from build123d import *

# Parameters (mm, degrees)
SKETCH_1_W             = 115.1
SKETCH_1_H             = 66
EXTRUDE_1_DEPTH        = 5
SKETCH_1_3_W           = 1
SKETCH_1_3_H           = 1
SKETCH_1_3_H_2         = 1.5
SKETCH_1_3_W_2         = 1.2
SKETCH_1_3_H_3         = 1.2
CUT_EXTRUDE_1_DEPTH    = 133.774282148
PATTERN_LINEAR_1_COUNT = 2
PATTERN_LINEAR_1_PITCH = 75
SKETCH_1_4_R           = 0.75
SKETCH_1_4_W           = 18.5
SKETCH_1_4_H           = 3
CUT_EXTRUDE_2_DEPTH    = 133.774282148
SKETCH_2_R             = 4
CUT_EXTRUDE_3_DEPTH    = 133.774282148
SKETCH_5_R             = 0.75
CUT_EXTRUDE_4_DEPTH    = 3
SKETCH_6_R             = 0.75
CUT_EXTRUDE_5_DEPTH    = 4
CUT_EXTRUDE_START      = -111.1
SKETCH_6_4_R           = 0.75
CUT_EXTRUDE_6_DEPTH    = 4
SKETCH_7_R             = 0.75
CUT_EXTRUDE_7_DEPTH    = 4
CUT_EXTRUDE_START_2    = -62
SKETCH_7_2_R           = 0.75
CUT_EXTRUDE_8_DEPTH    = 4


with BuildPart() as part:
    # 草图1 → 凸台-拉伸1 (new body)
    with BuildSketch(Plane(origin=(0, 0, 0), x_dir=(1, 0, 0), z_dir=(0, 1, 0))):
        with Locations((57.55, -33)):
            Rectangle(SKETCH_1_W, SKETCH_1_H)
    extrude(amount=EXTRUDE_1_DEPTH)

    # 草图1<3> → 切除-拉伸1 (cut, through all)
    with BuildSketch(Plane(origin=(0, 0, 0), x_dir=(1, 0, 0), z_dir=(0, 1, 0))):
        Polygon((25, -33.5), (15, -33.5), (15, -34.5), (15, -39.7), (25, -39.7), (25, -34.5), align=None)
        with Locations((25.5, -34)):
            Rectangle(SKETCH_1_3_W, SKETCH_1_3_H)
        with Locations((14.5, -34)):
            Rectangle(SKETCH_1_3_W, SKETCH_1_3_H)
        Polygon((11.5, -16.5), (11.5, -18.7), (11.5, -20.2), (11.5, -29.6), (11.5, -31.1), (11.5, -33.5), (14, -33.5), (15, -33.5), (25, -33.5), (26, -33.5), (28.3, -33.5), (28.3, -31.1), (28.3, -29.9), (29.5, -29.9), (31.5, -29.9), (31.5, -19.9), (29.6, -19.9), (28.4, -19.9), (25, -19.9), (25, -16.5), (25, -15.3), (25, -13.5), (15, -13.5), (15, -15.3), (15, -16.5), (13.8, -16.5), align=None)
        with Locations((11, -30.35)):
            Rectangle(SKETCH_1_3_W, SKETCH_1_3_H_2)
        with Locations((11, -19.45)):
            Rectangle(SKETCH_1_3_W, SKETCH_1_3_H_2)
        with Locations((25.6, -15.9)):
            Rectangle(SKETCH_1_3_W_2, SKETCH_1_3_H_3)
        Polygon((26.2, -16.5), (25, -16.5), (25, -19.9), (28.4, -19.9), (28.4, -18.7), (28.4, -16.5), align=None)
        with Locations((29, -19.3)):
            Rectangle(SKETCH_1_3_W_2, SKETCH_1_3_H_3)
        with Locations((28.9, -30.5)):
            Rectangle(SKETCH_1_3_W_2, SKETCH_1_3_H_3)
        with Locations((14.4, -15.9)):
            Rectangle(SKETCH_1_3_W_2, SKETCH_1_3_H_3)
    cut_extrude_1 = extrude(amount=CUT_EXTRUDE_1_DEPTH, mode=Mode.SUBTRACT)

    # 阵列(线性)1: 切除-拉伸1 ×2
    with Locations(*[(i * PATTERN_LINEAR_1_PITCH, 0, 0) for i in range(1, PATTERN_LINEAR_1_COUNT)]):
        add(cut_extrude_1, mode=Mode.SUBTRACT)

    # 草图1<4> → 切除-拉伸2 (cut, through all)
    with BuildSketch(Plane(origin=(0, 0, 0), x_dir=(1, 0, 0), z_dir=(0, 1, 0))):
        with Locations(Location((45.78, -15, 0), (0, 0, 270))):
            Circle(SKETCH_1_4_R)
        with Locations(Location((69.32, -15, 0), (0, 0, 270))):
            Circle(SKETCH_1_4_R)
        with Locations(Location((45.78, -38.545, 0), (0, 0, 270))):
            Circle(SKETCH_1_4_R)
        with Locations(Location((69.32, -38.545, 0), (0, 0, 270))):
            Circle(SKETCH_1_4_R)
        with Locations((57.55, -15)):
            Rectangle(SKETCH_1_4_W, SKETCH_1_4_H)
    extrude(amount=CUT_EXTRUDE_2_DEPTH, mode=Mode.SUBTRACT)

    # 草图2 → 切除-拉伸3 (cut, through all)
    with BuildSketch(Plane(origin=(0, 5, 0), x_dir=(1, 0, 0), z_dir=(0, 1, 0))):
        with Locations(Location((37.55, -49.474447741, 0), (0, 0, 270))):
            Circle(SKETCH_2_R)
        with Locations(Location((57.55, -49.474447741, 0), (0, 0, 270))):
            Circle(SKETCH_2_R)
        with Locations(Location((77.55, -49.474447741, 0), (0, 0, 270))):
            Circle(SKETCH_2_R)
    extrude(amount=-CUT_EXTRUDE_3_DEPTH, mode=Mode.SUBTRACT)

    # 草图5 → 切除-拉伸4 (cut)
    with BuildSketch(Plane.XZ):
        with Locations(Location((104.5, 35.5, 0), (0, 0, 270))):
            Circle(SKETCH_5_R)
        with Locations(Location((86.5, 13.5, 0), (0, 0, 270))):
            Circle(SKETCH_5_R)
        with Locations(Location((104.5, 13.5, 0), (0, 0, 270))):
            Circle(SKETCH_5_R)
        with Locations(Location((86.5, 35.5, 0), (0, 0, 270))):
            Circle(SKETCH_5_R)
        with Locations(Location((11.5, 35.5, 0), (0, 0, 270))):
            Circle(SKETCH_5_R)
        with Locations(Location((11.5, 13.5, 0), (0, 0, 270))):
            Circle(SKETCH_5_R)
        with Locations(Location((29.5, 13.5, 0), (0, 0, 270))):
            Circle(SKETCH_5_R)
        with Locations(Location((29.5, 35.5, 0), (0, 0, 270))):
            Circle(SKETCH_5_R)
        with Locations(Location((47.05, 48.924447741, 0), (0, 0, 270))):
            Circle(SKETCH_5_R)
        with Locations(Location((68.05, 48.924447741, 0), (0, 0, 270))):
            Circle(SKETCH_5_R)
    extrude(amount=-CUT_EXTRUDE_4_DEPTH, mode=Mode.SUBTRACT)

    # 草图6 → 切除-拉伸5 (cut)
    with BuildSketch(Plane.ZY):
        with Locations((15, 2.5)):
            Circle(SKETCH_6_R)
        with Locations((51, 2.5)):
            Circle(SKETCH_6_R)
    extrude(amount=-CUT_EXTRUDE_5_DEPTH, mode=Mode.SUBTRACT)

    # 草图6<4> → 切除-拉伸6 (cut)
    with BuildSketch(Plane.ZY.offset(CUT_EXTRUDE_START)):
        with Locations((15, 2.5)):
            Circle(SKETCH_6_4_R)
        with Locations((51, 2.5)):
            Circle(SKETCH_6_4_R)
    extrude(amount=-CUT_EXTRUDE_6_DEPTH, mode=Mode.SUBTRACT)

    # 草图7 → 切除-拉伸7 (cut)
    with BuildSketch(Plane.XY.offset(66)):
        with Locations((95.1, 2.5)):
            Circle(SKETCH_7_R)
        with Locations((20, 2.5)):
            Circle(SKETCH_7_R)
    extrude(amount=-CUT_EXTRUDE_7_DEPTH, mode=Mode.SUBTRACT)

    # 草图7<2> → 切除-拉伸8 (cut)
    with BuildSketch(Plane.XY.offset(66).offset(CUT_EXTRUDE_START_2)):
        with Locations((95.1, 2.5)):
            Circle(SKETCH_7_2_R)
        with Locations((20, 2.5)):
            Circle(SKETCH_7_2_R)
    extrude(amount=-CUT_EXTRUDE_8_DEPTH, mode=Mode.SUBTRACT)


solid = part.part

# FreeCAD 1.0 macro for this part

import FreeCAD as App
import Part
import Sketcher
from FreeCAD import Vector
Q = App.Units.Quantity


def add_polygon(sketch, points):
    """Adds a closed chain of lines whose ends are joined by coincident constraints."""
    first, n = sketch.GeometryCount, len(points)
    for a, b in zip(points, points[1:] + points[:1]):
        sketch.addGeometry(Part.LineSegment(App.Vector(*a, 0), App.Vector(*b, 0)), False)
    for i in range(n):
        sketch.addConstraint(Sketcher.Constraint("Coincident", first + i, 2, first + (i + 1) % n, 1))

doc = App.newDocument("Part")
body = doc.addObject("PartDesign::Body", "Body")

sketch1 = doc.addObject("Sketcher::SketchObject", "Sketch")
body.addObject(sketch1)
sketch1.AttachmentSupport = (doc.XZ_Plane, [""])
sketch1.MapMode = "FlatFace"
add_polygon(sketch1, [(0, 0), (0, 66), (115.1, 66), (115.1, 0)])
sketch1.addConstraint(Sketcher.Constraint("Vertical", 0))
sketch1.addConstraint(Sketcher.Constraint("Horizontal", 1))
sketch1.addConstraint(Sketcher.Constraint("Vertical", 2))
sketch1.addConstraint(Sketcher.Constraint("Horizontal", 3))
sketch1.addConstraint(Sketcher.Constraint("Coincident", 3, 2, -1, 1))
sketch1.addConstraint(Sketcher.Constraint("DistanceY", 0, 1, 0, 2, Q("66 mm")))
sketch1.addConstraint(Sketcher.Constraint("DistanceX", 1, 1, 1, 2, Q("115.1 mm")))
pad1 = doc.addObject("PartDesign::Pad", "Pad")
body.addObject(pad1)
pad1.Profile = sketch1
pad1.Length = 5
pad1.Reversed = True

sketch2 = doc.addObject("Sketcher::SketchObject", "Sketch001")
body.addObject(sketch2)
sketch2.AttachmentSupport = (doc.XZ_Plane, [""])
sketch2.MapMode = "FlatFace"
add_polygon(sketch2, [(15, 34.5), (15, 39.7), (25, 39.7), (25, 34.5), (26, 34.5), (26, 33.5), (28.3, 33.5), (28.3, 31.1), (29.5, 31.1), (29.5, 29.9), (31.5, 29.9), (31.5, 19.9), (29.6, 19.9), (29.6, 18.7), (28.4, 18.7), (28.4, 16.5), (26.2, 16.5), (26.2, 15.3), (25, 15.3), (25, 13.5), (15, 13.5), (15, 15.3), (13.8, 15.3), (13.8, 16.5), (11.5, 16.5), (11.5, 18.7), (10.5, 18.7), (10.5, 20.2), (11.5, 20.2), (11.5, 29.6), (10.5, 29.6), (10.5, 31.1), (11.5, 31.1), (11.5, 33.5), (14, 33.5), (14, 34.5)])
sketch2.addConstraint(Sketcher.Constraint("Vertical", 0))
sketch2.addConstraint(Sketcher.Constraint("Horizontal", 1))
sketch2.addConstraint(Sketcher.Constraint("Vertical", 2))
sketch2.addConstraint(Sketcher.Constraint("Horizontal", 3))
sketch2.addConstraint(Sketcher.Constraint("Vertical", 4))
sketch2.addConstraint(Sketcher.Constraint("Horizontal", 5))
sketch2.addConstraint(Sketcher.Constraint("Vertical", 6))
sketch2.addConstraint(Sketcher.Constraint("Horizontal", 7))
sketch2.addConstraint(Sketcher.Constraint("Vertical", 8))
sketch2.addConstraint(Sketcher.Constraint("Horizontal", 9))
sketch2.addConstraint(Sketcher.Constraint("Vertical", 10))
sketch2.addConstraint(Sketcher.Constraint("Horizontal", 11))
sketch2.addConstraint(Sketcher.Constraint("Vertical", 12))
sketch2.addConstraint(Sketcher.Constraint("Horizontal", 13))
sketch2.addConstraint(Sketcher.Constraint("Vertical", 14))
sketch2.addConstraint(Sketcher.Constraint("Horizontal", 15))
sketch2.addConstraint(Sketcher.Constraint("Vertical", 16))
sketch2.addConstraint(Sketcher.Constraint("Horizontal", 17))
sketch2.addConstraint(Sketcher.Constraint("Vertical", 18))
sketch2.addConstraint(Sketcher.Constraint("Horizontal", 19))
sketch2.addConstraint(Sketcher.Constraint("Vertical", 20))
sketch2.addConstraint(Sketcher.Constraint("Horizontal", 21))
sketch2.addConstraint(Sketcher.Constraint("Vertical", 22))
sketch2.addConstraint(Sketcher.Constraint("Horizontal", 23))
sketch2.addConstraint(Sketcher.Constraint("Vertical", 24))
sketch2.addConstraint(Sketcher.Constraint("Horizontal", 25))
sketch2.addConstraint(Sketcher.Constraint("Vertical", 26))
sketch2.addConstraint(Sketcher.Constraint("Horizontal", 27))
sketch2.addConstraint(Sketcher.Constraint("Vertical", 28))
sketch2.addConstraint(Sketcher.Constraint("Horizontal", 29))
sketch2.addConstraint(Sketcher.Constraint("Vertical", 30))
sketch2.addConstraint(Sketcher.Constraint("Horizontal", 31))
sketch2.addConstraint(Sketcher.Constraint("Vertical", 32))
sketch2.addConstraint(Sketcher.Constraint("Horizontal", 33))
sketch2.addConstraint(Sketcher.Constraint("Vertical", 34))
sketch2.addConstraint(Sketcher.Constraint("Horizontal", 35))
sketch2.addConstraint(Sketcher.Constraint("Horizontal", 17, 2, 20, 2))
sketch2.addConstraint(Sketcher.Constraint("Horizontal", 15, 2, 22, 2))
sketch2.addConstraint(Sketcher.Constraint("Horizontal", 13, 2, 24, 2))
sketch2.addConstraint(Sketcher.Constraint("Horizontal", 7, 2, 30, 2))
sketch2.addConstraint(Sketcher.Constraint("Horizontal", 5, 2, 32, 2))
sketch2.addConstraint(Sketcher.Constraint("Horizontal", 3, 2, 34, 2))
sketch2.addConstraint(Sketcher.Constraint("Vertical", 2, 2, 17, 2))
sketch2.addConstraint(Sketcher.Constraint("Vertical", 0, 2, 19, 2))
sketch2.addConstraint(Sketcher.Constraint("Vertical", 24, 2, 27, 2))
sketch2.addConstraint(Sketcher.Constraint("Vertical", 26, 2, 29, 2))
sketch2.addConstraint(Sketcher.Constraint("Vertical", 28, 2, 31, 2))
sketch2.addConstraint(Sketcher.Constraint("Equal", 7, 13))
sketch2.addConstraint(Sketcher.Constraint("Equal", 13, 17))
sketch2.addConstraint(Sketcher.Constraint("Equal", 17, 21))
sketch2.addConstraint(Sketcher.Constraint("Equal", 5, 23))
sketch2.addConstraint(Sketcher.Constraint("Equal", 3, 25))
sketch2.addConstraint(Sketcher.Constraint("Equal", 31, 35))
sketch2.addConstraint(Sketcher.Constraint("Equal", 35, 4))
sketch2.addConstraint(Sketcher.Constraint("Equal", 21, 8))
sketch2.addConstraint(Sketcher.Constraint("Equal", 19, 10))
sketch2.addConstraint(Sketcher.Constraint("Equal", 8, 12))
sketch2.addConstraint(Sketcher.Constraint("Equal", 15, 14))
sketch2.addConstraint(Sketcher.Constraint("Equal", 12, 16))
sketch2.addConstraint(Sketcher.Constraint("Equal", 26, 30))
sketch2.addConstraint(Sketcher.Constraint("DistanceX", 1, 1, 1, 2, Q("10 mm")))
sketch2.addConstraint(Sketcher.Constraint("DistanceX", 3, 1, 3, 2, Q("1 mm")))
sketch2.addConstraint(Sketcher.Constraint("DistanceX", 9, 1, 9, 2, Q("2 mm")))
sketch2.addConstraint(Sketcher.Constraint("DistanceX", 5, 1, 5, 2, Q("2.3 mm")))
sketch2.addConstraint(Sketcher.Constraint("DistanceX", 7, 1, 7, 2, Q("1.2 mm")))
sketch2.addConstraint(Sketcher.Constraint("DistanceX", 11, 2, 11, 1, Q("1.9 mm")))
sketch2.addConstraint(Sketcher.Constraint("DistanceY", 0, 1, 0, 2, Q("5.2 mm")))
sketch2.addConstraint(Sketcher.Constraint("DistanceY", 6, 2, 6, 1, Q("2.4 mm")))
sketch2.addConstraint(Sketcher.Constraint("DistanceY", 18, 2, 18, 1, Q("1.8 mm")))
sketch2.addConstraint(Sketcher.Constraint("DistanceY", 26, 1, 26, 2, Q("1.5 mm")))
sketch2.addConstraint(Sketcher.Constraint("DistanceX", -1, 1, 0, 2, Q("15 mm")))
sketch2.addConstraint(Sketcher.Constraint("DistanceY", -1, 1, 0, 2, Q("39.7 mm")))
pocket1 = doc.addObject("PartDesign::Pocket", "Pocket")
body.addObject(pocket1)
pocket1.Profile = sketch2
pocket1.Type = "ThroughAll"
doc.recompute()

linearpattern = doc.addObject("PartDesign::LinearPattern", "LinearPattern")
body.addObject(linearpattern)
linearpattern.Originals = [pocket1]
linearpattern.Direction = (doc.X_Axis, [""])
linearpattern.Mode = "offset"
linearpattern.Offset = 75
linearpattern.Occurrences = 2
body.Tip = linearpattern

sketch3 = doc.addObject("Sketcher::SketchObject", "Sketch002")
body.addObject(sketch3)
sketch3.AttachmentSupport = (doc.XZ_Plane, [""])
sketch3.MapMode = "FlatFace"
sketch3.addGeometry(Part.Circle(Vector(45.78, 15, 0), Vector(0, 0, 1), 0.75), False)
sketch3.addGeometry(Part.Circle(Vector(69.32, 15, 0), Vector(0, 0, 1), 0.75), False)
sketch3.addGeometry(Part.Circle(Vector(45.78, 38.545, 0), Vector(0, 0, 1), 0.75), False)
sketch3.addGeometry(Part.Circle(Vector(69.32, 38.545, 0), Vector(0, 0, 1), 0.75), False)
add_polygon(sketch3, [(48.3, 13.5), (48.3, 16.5), (66.8, 16.5), (66.8, 13.5)])
sketch3.addConstraint(Sketcher.Constraint("Vertical", 4))
sketch3.addConstraint(Sketcher.Constraint("Horizontal", 5))
sketch3.addConstraint(Sketcher.Constraint("Vertical", 6))
sketch3.addConstraint(Sketcher.Constraint("Horizontal", 7))
sketch3.addConstraint(Sketcher.Constraint("Equal", 0, 1))
sketch3.addConstraint(Sketcher.Constraint("Equal", 1, 2))
sketch3.addConstraint(Sketcher.Constraint("Equal", 2, 3))
sketch3.addConstraint(Sketcher.Constraint("Horizontal", 0, 3, 1, 3))
sketch3.addConstraint(Sketcher.Constraint("Horizontal", 2, 3, 3, 3))
sketch3.addConstraint(Sketcher.Constraint("Vertical", 0, 3, 2, 3))
sketch3.addConstraint(Sketcher.Constraint("Vertical", 1, 3, 3, 3))
sketch3.addConstraint(Sketcher.Constraint("Diameter", 0, Q("1.5 mm")))
sketch3.addConstraint(Sketcher.Constraint("DistanceY", 4, 1, 4, 2, Q("3 mm")))
sketch3.addConstraint(Sketcher.Constraint("DistanceX", 5, 1, 5, 2, Q("18.5 mm")))
sketch3.addConstraint(Sketcher.Constraint("DistanceY", -1, 1, 0, 3, Q("15 mm")))
sketch3.addConstraint(Sketcher.Constraint("DistanceX", -1, 1, 4, 2, Q("48.3 mm")))
sketch3.addConstraint(Sketcher.Constraint("DistanceY", -1, 1, 4, 2, Q("16.5 mm")))
sketch3.addConstraint(Sketcher.Constraint("DistanceX", -1, 1, 0, 3, Q("45.78 mm")))
sketch3.addConstraint(Sketcher.Constraint("DistanceX", -1, 1, 1, 3, Q("69.32 mm")))
sketch3.addConstraint(Sketcher.Constraint("DistanceY", -1, 1, 2, 3, Q("38.545 mm")))
pocket2 = doc.addObject("PartDesign::Pocket", "Pocket001")
body.addObject(pocket2)
pocket2.Profile = sketch3
pocket2.Type = "ThroughAll"

sketch4 = doc.addObject("Sketcher::SketchObject", "Sketch003")
body.addObject(sketch4)
sketch4.AttachmentSupport = (doc.XZ_Plane, [""])
sketch4.MapMode = "FlatFace"
sketch4.AttachmentOffset = App.Placement(Vector(0, 0, -5), App.Rotation())
sketch4.addGeometry(Part.Circle(Vector(37.55, 49.474448, 0), Vector(0, 0, 1), 4), False)
sketch4.addGeometry(Part.Circle(Vector(57.55, 49.474448, 0), Vector(0, 0, 1), 4), False)
sketch4.addGeometry(Part.Circle(Vector(77.55, 49.474448, 0), Vector(0, 0, 1), 4), False)
sketch4.addConstraint(Sketcher.Constraint("Equal", 0, 1))
sketch4.addConstraint(Sketcher.Constraint("Equal", 1, 2))
sketch4.addConstraint(Sketcher.Constraint("Horizontal", 0, 3, 1, 3))
sketch4.addConstraint(Sketcher.Constraint("Horizontal", 1, 3, 2, 3))
sketch4.addConstraint(Sketcher.Constraint("Diameter", 0, Q("8 mm")))
sketch4.addConstraint(Sketcher.Constraint("DistanceX", 0, 3, 1, 3, Q("20 mm")))
sketch4.addConstraint(Sketcher.Constraint("DistanceX", 1, 3, 2, 3, Q("20 mm")))
sketch4.addConstraint(Sketcher.Constraint("DistanceX", -1, 1, 0, 3, Q("37.55 mm")))
sketch4.addConstraint(Sketcher.Constraint("DistanceY", -1, 1, 0, 3, Q("49.474448 mm")))
pocket3 = doc.addObject("PartDesign::Pocket", "Pocket002")
body.addObject(pocket3)
pocket3.Profile = sketch4
pocket3.Type = "ThroughAll"
pocket3.Reversed = True

sketch5 = doc.addObject("Sketcher::SketchObject", "Sketch004")
body.addObject(sketch5)
sketch5.AttachmentSupport = (doc.XZ_Plane, [""])
sketch5.MapMode = "FlatFace"
sketch5.addGeometry(Part.Circle(Vector(104.5, 35.5, 0), Vector(0, 0, 1), 0.75), False)
sketch5.addGeometry(Part.Circle(Vector(86.5, 13.5, 0), Vector(0, 0, 1), 0.75), False)
sketch5.addGeometry(Part.Circle(Vector(104.5, 13.5, 0), Vector(0, 0, 1), 0.75), False)
sketch5.addGeometry(Part.Circle(Vector(86.5, 35.5, 0), Vector(0, 0, 1), 0.75), False)
sketch5.addGeometry(Part.Circle(Vector(11.5, 35.5, 0), Vector(0, 0, 1), 0.75), False)
sketch5.addGeometry(Part.Circle(Vector(11.5, 13.5, 0), Vector(0, 0, 1), 0.75), False)
sketch5.addGeometry(Part.Circle(Vector(29.5, 13.5, 0), Vector(0, 0, 1), 0.75), False)
sketch5.addGeometry(Part.Circle(Vector(29.5, 35.5, 0), Vector(0, 0, 1), 0.75), False)
sketch5.addGeometry(Part.Circle(Vector(47.05, 48.924448, 0), Vector(0, 0, 1), 0.75), False)
sketch5.addGeometry(Part.Circle(Vector(68.05, 48.924448, 0), Vector(0, 0, 1), 0.75), False)
sketch5.addConstraint(Sketcher.Constraint("Equal", 0, 1))
sketch5.addConstraint(Sketcher.Constraint("Equal", 1, 2))
sketch5.addConstraint(Sketcher.Constraint("Equal", 2, 3))
sketch5.addConstraint(Sketcher.Constraint("Equal", 3, 4))
sketch5.addConstraint(Sketcher.Constraint("Equal", 4, 5))
sketch5.addConstraint(Sketcher.Constraint("Equal", 5, 6))
sketch5.addConstraint(Sketcher.Constraint("Equal", 6, 7))
sketch5.addConstraint(Sketcher.Constraint("Equal", 7, 8))
sketch5.addConstraint(Sketcher.Constraint("Equal", 8, 9))
sketch5.addConstraint(Sketcher.Constraint("Horizontal", 1, 3, 2, 3))
sketch5.addConstraint(Sketcher.Constraint("Horizontal", 0, 3, 3, 3))
sketch5.addConstraint(Sketcher.Constraint("Horizontal", 3, 3, 4, 3))
sketch5.addConstraint(Sketcher.Constraint("Horizontal", 2, 3, 5, 3))
sketch5.addConstraint(Sketcher.Constraint("Horizontal", 5, 3, 6, 3))
sketch5.addConstraint(Sketcher.Constraint("Horizontal", 4, 3, 7, 3))
sketch5.addConstraint(Sketcher.Constraint("Horizontal", 8, 3, 9, 3))
sketch5.addConstraint(Sketcher.Constraint("Vertical", 0, 3, 2, 3))
sketch5.addConstraint(Sketcher.Constraint("Vertical", 1, 3, 3, 3))
sketch5.addConstraint(Sketcher.Constraint("Vertical", 4, 3, 5, 3))
sketch5.addConstraint(Sketcher.Constraint("Vertical", 6, 3, 7, 3))
sketch5.addConstraint(Sketcher.Constraint("Diameter", 0, Q("1.5 mm")))
sketch5.addConstraint(Sketcher.Constraint("DistanceX", 1, 3, 0, 3, Q("18 mm")))
sketch5.addConstraint(Sketcher.Constraint("DistanceY", 1, 3, 0, 3, Q("22 mm")))
sketch5.addConstraint(Sketcher.Constraint("DistanceX", 4, 3, 3, 3, Q("75 mm")))
sketch5.addConstraint(Sketcher.Constraint("DistanceX", 5, 3, 6, 3, Q("18 mm")))
sketch5.addConstraint(Sketcher.Constraint("DistanceX", 8, 3, 9, 3, Q("21 mm")))
sketch5.addConstraint(Sketcher.Constraint("DistanceX", -1, 1, 0, 3, Q("104.5 mm")))
sketch5.addConstraint(Sketcher.Constraint("DistanceY", -1, 1, 0, 3, Q("35.5 mm")))
sketch5.addConstraint(Sketcher.Constraint("DistanceX", -1, 1, 8, 3, Q("47.05 mm")))
sketch5.addConstraint(Sketcher.Constraint("DistanceY", -1, 1, 8, 3, Q("48.924448 mm")))
pocket4 = doc.addObject("PartDesign::Pocket", "Pocket003")
body.addObject(pocket4)
pocket4.Profile = sketch5
pocket4.Length = 3

sketch6 = doc.addObject("Sketcher::SketchObject", "Sketch005")
body.addObject(sketch6)
sketch6.AttachmentSupport = (doc.YZ_Plane, [""])
sketch6.MapMode = "FlatFace"
sketch6.addGeometry(Part.Circle(Vector(2.5, 15, 0), Vector(0, 0, 1), 0.75), False)
sketch6.addGeometry(Part.Circle(Vector(2.5, 51, 0), Vector(0, 0, 1), 0.75), False)
sketch6.addConstraint(Sketcher.Constraint("Equal", 0, 1))
sketch6.addConstraint(Sketcher.Constraint("Vertical", 0, 3, 1, 3))
sketch6.addConstraint(Sketcher.Constraint("Diameter", 0, Q("1.5 mm")))
sketch6.addConstraint(Sketcher.Constraint("DistanceY", -1, 1, 0, 3, Q("15 mm")))
sketch6.addConstraint(Sketcher.Constraint("DistanceY", -1, 1, 1, 3, Q("51 mm")))
sketch6.addConstraint(Sketcher.Constraint("DistanceX", -1, 1, 0, 3, Q("2.5 mm")))
pocket5 = doc.addObject("PartDesign::Pocket", "Pocket004")
body.addObject(pocket5)
pocket5.Profile = sketch6
pocket5.Length = 4
pocket5.Reversed = True

sketch7 = doc.addObject("Sketcher::SketchObject", "Sketch006")
body.addObject(sketch7)
sketch7.AttachmentSupport = (doc.YZ_Plane, [""])
sketch7.MapMode = "FlatFace"
sketch7.AttachmentOffset = App.Placement(Vector(0, 0, 111.1), App.Rotation())
sketch7.addGeometry(Part.Circle(Vector(2.5, 15, 0), Vector(0, 0, 1), 0.75), False)
sketch7.addGeometry(Part.Circle(Vector(2.5, 51, 0), Vector(0, 0, 1), 0.75), False)
sketch7.addConstraint(Sketcher.Constraint("Equal", 0, 1))
sketch7.addConstraint(Sketcher.Constraint("Vertical", 0, 3, 1, 3))
sketch7.addConstraint(Sketcher.Constraint("Diameter", 0, Q("1.5 mm")))
sketch7.addConstraint(Sketcher.Constraint("DistanceY", -1, 1, 0, 3, Q("15 mm")))
sketch7.addConstraint(Sketcher.Constraint("DistanceY", -1, 1, 1, 3, Q("51 mm")))
sketch7.addConstraint(Sketcher.Constraint("DistanceX", -1, 1, 0, 3, Q("2.5 mm")))
pocket6 = doc.addObject("PartDesign::Pocket", "Pocket005")
body.addObject(pocket6)
pocket6.Profile = sketch7
pocket6.Length = 4
pocket6.Reversed = True

sketch8 = doc.addObject("Sketcher::SketchObject", "Sketch007")
body.addObject(sketch8)
sketch8.AttachmentSupport = (doc.XY_Plane, [""])
sketch8.MapMode = "FlatFace"
sketch8.AttachmentOffset = App.Placement(Vector(0, 0, 66), App.Rotation())
sketch8.addGeometry(Part.Circle(Vector(95.1, 2.5, 0), Vector(0, 0, 1), 0.75), False)
sketch8.addGeometry(Part.Circle(Vector(20, 2.5, 0), Vector(0, 0, 1), 0.75), False)
sketch8.addConstraint(Sketcher.Constraint("Equal", 0, 1))
sketch8.addConstraint(Sketcher.Constraint("Horizontal", 0, 3, 1, 3))
sketch8.addConstraint(Sketcher.Constraint("Diameter", 0, Q("1.5 mm")))
sketch8.addConstraint(Sketcher.Constraint("DistanceX", -1, 1, 1, 3, Q("20 mm")))
sketch8.addConstraint(Sketcher.Constraint("DistanceX", -1, 1, 0, 3, Q("95.1 mm")))
sketch8.addConstraint(Sketcher.Constraint("DistanceY", -1, 1, 0, 3, Q("2.5 mm")))
pocket7 = doc.addObject("PartDesign::Pocket", "Pocket006")
body.addObject(pocket7)
pocket7.Profile = sketch8
pocket7.Length = 4

sketch9 = doc.addObject("Sketcher::SketchObject", "Sketch008")
body.addObject(sketch9)
sketch9.AttachmentSupport = (doc.XY_Plane, [""])
sketch9.MapMode = "FlatFace"
sketch9.AttachmentOffset = App.Placement(Vector(0, 0, 4), App.Rotation())
sketch9.addGeometry(Part.Circle(Vector(95.1, 2.5, 0), Vector(0, 0, 1), 0.75), False)
sketch9.addGeometry(Part.Circle(Vector(20, 2.5, 0), Vector(0, 0, 1), 0.75), False)
sketch9.addConstraint(Sketcher.Constraint("Equal", 0, 1))
sketch9.addConstraint(Sketcher.Constraint("Horizontal", 0, 3, 1, 3))
sketch9.addConstraint(Sketcher.Constraint("Diameter", 0, Q("1.5 mm")))
sketch9.addConstraint(Sketcher.Constraint("DistanceX", -1, 1, 1, 3, Q("20 mm")))
sketch9.addConstraint(Sketcher.Constraint("DistanceX", -1, 1, 0, 3, Q("95.1 mm")))
sketch9.addConstraint(Sketcher.Constraint("DistanceY", -1, 1, 0, 3, Q("2.5 mm")))
pocket8 = doc.addObject("PartDesign::Pocket", "Pocket007")
body.addObject(pocket8)
pocket8.Profile = sketch9
pocket8.Length = 4

doc.recompute()
